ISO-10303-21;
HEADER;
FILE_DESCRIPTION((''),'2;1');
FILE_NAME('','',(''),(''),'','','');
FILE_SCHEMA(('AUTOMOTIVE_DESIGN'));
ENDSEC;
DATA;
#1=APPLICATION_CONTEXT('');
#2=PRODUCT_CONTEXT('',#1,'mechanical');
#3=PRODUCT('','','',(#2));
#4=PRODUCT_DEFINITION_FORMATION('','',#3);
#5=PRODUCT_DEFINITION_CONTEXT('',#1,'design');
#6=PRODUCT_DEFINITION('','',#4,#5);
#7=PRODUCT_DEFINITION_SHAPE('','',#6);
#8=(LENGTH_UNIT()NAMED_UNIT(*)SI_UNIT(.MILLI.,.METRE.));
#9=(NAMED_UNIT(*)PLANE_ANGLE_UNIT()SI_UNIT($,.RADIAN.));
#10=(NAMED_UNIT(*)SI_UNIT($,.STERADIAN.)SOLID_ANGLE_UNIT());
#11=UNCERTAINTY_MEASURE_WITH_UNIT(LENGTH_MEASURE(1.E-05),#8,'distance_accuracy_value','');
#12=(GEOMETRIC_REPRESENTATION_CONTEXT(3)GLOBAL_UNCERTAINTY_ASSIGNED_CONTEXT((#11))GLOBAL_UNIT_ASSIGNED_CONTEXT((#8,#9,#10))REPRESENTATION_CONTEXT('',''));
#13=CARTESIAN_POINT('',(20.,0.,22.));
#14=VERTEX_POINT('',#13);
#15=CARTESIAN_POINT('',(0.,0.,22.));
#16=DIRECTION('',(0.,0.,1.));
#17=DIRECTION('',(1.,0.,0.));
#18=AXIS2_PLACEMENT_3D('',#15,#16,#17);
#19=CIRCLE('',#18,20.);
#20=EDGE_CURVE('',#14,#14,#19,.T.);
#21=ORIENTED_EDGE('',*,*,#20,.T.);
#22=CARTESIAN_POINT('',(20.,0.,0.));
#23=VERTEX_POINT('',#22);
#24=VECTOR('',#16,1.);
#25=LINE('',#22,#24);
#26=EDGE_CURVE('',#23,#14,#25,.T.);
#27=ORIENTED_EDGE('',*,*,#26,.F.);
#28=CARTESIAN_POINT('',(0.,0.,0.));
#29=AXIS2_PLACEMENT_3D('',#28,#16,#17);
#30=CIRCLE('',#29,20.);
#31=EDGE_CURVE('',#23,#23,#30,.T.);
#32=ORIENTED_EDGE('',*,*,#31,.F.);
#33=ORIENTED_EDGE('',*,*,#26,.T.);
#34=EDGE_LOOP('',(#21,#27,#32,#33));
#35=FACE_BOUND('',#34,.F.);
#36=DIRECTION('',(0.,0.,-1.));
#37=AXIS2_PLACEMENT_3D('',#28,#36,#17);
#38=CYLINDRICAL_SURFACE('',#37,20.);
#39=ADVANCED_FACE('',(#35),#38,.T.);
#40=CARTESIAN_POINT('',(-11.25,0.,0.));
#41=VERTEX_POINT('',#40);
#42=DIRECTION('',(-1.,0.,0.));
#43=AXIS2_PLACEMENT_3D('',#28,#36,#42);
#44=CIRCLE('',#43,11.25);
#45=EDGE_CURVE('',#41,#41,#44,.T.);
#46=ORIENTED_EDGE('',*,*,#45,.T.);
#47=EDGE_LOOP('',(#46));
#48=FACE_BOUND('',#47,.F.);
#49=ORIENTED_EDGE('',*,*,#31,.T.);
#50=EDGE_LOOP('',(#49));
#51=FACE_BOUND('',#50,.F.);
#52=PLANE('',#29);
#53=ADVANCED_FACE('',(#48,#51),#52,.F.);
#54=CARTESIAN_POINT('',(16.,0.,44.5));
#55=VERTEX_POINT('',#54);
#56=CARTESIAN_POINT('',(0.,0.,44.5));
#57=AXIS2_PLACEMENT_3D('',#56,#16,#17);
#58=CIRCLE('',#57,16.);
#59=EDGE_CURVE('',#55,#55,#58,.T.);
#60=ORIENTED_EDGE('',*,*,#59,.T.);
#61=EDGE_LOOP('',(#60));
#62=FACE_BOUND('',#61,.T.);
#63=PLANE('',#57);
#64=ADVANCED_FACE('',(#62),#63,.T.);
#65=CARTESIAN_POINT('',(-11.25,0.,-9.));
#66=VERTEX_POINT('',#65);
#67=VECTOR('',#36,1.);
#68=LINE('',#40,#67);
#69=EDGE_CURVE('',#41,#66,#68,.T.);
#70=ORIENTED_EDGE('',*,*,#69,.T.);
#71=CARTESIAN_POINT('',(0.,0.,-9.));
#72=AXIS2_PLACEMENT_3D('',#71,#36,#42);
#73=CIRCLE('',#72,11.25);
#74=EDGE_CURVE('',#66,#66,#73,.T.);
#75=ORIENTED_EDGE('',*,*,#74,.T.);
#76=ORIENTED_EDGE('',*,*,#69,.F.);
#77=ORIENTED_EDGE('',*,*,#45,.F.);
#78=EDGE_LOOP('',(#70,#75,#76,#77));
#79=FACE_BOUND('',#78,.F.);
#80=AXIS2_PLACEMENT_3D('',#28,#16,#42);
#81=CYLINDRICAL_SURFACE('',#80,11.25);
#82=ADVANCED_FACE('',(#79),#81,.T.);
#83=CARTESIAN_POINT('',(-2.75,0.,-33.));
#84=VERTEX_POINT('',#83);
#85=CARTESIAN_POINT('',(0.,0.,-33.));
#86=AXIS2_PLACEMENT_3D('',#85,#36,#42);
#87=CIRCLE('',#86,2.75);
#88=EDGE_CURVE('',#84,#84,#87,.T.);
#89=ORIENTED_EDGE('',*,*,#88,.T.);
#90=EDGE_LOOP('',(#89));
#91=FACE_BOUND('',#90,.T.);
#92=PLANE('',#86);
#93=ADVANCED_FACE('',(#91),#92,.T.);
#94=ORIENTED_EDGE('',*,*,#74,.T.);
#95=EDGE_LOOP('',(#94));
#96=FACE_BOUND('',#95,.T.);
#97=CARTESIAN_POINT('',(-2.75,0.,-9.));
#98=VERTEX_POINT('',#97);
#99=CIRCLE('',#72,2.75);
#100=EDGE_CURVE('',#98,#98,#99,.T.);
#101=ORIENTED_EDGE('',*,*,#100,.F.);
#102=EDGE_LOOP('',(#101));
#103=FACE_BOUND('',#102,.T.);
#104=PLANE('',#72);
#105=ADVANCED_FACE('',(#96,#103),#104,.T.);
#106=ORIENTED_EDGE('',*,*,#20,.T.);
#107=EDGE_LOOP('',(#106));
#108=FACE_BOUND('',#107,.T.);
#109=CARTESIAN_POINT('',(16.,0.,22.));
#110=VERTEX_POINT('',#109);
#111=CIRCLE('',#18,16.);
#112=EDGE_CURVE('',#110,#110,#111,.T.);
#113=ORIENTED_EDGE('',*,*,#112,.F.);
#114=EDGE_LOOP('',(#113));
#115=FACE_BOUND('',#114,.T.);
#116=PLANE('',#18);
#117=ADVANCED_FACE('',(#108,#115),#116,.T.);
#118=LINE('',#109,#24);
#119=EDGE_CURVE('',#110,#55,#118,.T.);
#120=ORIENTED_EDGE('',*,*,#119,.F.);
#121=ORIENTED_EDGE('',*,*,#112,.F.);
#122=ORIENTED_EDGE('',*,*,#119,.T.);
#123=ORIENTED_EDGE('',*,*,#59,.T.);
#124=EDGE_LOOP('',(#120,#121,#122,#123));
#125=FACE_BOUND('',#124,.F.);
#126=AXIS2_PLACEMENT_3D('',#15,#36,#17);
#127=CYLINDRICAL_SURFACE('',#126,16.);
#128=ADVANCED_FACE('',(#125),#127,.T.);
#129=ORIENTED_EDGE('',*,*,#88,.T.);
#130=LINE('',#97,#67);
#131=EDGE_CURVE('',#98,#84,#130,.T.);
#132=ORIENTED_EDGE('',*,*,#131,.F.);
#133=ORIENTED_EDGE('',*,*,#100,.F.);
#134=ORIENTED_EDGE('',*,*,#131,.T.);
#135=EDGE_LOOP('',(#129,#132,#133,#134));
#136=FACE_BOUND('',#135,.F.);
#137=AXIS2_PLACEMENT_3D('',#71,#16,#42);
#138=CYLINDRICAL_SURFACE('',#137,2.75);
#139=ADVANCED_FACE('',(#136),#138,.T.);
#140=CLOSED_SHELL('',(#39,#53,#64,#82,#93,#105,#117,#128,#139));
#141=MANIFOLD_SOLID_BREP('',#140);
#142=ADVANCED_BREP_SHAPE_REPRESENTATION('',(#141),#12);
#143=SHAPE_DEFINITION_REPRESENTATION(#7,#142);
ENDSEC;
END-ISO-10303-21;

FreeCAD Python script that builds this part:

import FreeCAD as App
import Part
import Sketcher

doc = App.newDocument("Part")
body = doc.addObject("PartDesign::Body", "Body")

sketch1 = doc.addObject("Sketcher::SketchObject", "Sketch")
body.addObject(sketch1)
sketch1.AttachmentSupport = (doc.XY_Plane, [""])
sketch1.MapMode = "FlatFace"
sketch1.addGeometry(Part.Circle(App.Vector(0, 0, 0), App.Vector(0, 0, 1), 20), False)
sketch1.addConstraint([
    Sketcher.Constraint("Coincident", 0, 3, -1, 1),
    Sketcher.Constraint("Diameter", 0, 40.0),
])
pad1 = doc.addObject("PartDesign::Pad", "Pad")
body.addObject(pad1)
pad1.Profile = sketch1
pad1.Length = 22

sketch2 = doc.addObject("Sketcher::SketchObject", "Sketch001")
body.addObject(sketch2)
sketch2.AttachmentSupport = (doc.XY_Plane, [""])
sketch2.MapMode = "FlatFace"
sketch2.AttachmentOffset = App.Placement(App.Vector(0, 0, 22), App.Rotation())
sketch2.addGeometry(Part.Circle(App.Vector(0, 0, 0), App.Vector(0, 0, 1), 16), False)
sketch2.addConstraint([
    Sketcher.Constraint("Coincident", 0, 3, -1, 1),
    Sketcher.Constraint("Diameter", 0, 32.0),
])
pad2 = doc.addObject("PartDesign::Pad", "Pad001")
body.addObject(pad2)
pad2.Profile = sketch2
pad2.Length = 22.5

sketch3 = doc.addObject("Sketcher::SketchObject", "Sketch002")
body.addObject(sketch3)
sketch3.AttachmentSupport = (doc.XY_Plane, [""])
sketch3.MapMode = "FlatFace"
sketch3.addGeometry(Part.Circle(App.Vector(0, 0, 0), App.Vector(0, 0, 1), 11), False)
sketch3.addConstraint([
    Sketcher.Constraint("Coincident", 0, 3, -1, 1),
    Sketcher.Constraint("Diameter", 0, 22.5),
])
pad3 = doc.addObject("PartDesign::Pad", "Pad002")
body.addObject(pad3)
pad3.Profile = sketch3
pad3.Length = 9
pad3.Reversed = True

sketch4 = doc.addObject("Sketcher::SketchObject", "Sketch003")
body.addObject(sketch4)
sketch4.AttachmentSupport = (doc.XY_Plane, [""])
sketch4.MapMode = "FlatFace"
sketch4.AttachmentOffset = App.Placement(App.Vector(0, 0, -9), App.Rotation())
sketch4.addGeometry(Part.Circle(App.Vector(0, 0, 0), App.Vector(0, 0, 1), 2.8), False)
sketch4.addConstraint([
    Sketcher.Constraint("Coincident", 0, 3, -1, 1),
    Sketcher.Constraint("Diameter", 0, 5.5),
])
pad4 = doc.addObject("PartDesign::Pad", "Pad003")
body.addObject(pad4)
pad4.Profile = sketch4
pad4.Length = 24
pad4.Reversed = True

doc.recompute()
